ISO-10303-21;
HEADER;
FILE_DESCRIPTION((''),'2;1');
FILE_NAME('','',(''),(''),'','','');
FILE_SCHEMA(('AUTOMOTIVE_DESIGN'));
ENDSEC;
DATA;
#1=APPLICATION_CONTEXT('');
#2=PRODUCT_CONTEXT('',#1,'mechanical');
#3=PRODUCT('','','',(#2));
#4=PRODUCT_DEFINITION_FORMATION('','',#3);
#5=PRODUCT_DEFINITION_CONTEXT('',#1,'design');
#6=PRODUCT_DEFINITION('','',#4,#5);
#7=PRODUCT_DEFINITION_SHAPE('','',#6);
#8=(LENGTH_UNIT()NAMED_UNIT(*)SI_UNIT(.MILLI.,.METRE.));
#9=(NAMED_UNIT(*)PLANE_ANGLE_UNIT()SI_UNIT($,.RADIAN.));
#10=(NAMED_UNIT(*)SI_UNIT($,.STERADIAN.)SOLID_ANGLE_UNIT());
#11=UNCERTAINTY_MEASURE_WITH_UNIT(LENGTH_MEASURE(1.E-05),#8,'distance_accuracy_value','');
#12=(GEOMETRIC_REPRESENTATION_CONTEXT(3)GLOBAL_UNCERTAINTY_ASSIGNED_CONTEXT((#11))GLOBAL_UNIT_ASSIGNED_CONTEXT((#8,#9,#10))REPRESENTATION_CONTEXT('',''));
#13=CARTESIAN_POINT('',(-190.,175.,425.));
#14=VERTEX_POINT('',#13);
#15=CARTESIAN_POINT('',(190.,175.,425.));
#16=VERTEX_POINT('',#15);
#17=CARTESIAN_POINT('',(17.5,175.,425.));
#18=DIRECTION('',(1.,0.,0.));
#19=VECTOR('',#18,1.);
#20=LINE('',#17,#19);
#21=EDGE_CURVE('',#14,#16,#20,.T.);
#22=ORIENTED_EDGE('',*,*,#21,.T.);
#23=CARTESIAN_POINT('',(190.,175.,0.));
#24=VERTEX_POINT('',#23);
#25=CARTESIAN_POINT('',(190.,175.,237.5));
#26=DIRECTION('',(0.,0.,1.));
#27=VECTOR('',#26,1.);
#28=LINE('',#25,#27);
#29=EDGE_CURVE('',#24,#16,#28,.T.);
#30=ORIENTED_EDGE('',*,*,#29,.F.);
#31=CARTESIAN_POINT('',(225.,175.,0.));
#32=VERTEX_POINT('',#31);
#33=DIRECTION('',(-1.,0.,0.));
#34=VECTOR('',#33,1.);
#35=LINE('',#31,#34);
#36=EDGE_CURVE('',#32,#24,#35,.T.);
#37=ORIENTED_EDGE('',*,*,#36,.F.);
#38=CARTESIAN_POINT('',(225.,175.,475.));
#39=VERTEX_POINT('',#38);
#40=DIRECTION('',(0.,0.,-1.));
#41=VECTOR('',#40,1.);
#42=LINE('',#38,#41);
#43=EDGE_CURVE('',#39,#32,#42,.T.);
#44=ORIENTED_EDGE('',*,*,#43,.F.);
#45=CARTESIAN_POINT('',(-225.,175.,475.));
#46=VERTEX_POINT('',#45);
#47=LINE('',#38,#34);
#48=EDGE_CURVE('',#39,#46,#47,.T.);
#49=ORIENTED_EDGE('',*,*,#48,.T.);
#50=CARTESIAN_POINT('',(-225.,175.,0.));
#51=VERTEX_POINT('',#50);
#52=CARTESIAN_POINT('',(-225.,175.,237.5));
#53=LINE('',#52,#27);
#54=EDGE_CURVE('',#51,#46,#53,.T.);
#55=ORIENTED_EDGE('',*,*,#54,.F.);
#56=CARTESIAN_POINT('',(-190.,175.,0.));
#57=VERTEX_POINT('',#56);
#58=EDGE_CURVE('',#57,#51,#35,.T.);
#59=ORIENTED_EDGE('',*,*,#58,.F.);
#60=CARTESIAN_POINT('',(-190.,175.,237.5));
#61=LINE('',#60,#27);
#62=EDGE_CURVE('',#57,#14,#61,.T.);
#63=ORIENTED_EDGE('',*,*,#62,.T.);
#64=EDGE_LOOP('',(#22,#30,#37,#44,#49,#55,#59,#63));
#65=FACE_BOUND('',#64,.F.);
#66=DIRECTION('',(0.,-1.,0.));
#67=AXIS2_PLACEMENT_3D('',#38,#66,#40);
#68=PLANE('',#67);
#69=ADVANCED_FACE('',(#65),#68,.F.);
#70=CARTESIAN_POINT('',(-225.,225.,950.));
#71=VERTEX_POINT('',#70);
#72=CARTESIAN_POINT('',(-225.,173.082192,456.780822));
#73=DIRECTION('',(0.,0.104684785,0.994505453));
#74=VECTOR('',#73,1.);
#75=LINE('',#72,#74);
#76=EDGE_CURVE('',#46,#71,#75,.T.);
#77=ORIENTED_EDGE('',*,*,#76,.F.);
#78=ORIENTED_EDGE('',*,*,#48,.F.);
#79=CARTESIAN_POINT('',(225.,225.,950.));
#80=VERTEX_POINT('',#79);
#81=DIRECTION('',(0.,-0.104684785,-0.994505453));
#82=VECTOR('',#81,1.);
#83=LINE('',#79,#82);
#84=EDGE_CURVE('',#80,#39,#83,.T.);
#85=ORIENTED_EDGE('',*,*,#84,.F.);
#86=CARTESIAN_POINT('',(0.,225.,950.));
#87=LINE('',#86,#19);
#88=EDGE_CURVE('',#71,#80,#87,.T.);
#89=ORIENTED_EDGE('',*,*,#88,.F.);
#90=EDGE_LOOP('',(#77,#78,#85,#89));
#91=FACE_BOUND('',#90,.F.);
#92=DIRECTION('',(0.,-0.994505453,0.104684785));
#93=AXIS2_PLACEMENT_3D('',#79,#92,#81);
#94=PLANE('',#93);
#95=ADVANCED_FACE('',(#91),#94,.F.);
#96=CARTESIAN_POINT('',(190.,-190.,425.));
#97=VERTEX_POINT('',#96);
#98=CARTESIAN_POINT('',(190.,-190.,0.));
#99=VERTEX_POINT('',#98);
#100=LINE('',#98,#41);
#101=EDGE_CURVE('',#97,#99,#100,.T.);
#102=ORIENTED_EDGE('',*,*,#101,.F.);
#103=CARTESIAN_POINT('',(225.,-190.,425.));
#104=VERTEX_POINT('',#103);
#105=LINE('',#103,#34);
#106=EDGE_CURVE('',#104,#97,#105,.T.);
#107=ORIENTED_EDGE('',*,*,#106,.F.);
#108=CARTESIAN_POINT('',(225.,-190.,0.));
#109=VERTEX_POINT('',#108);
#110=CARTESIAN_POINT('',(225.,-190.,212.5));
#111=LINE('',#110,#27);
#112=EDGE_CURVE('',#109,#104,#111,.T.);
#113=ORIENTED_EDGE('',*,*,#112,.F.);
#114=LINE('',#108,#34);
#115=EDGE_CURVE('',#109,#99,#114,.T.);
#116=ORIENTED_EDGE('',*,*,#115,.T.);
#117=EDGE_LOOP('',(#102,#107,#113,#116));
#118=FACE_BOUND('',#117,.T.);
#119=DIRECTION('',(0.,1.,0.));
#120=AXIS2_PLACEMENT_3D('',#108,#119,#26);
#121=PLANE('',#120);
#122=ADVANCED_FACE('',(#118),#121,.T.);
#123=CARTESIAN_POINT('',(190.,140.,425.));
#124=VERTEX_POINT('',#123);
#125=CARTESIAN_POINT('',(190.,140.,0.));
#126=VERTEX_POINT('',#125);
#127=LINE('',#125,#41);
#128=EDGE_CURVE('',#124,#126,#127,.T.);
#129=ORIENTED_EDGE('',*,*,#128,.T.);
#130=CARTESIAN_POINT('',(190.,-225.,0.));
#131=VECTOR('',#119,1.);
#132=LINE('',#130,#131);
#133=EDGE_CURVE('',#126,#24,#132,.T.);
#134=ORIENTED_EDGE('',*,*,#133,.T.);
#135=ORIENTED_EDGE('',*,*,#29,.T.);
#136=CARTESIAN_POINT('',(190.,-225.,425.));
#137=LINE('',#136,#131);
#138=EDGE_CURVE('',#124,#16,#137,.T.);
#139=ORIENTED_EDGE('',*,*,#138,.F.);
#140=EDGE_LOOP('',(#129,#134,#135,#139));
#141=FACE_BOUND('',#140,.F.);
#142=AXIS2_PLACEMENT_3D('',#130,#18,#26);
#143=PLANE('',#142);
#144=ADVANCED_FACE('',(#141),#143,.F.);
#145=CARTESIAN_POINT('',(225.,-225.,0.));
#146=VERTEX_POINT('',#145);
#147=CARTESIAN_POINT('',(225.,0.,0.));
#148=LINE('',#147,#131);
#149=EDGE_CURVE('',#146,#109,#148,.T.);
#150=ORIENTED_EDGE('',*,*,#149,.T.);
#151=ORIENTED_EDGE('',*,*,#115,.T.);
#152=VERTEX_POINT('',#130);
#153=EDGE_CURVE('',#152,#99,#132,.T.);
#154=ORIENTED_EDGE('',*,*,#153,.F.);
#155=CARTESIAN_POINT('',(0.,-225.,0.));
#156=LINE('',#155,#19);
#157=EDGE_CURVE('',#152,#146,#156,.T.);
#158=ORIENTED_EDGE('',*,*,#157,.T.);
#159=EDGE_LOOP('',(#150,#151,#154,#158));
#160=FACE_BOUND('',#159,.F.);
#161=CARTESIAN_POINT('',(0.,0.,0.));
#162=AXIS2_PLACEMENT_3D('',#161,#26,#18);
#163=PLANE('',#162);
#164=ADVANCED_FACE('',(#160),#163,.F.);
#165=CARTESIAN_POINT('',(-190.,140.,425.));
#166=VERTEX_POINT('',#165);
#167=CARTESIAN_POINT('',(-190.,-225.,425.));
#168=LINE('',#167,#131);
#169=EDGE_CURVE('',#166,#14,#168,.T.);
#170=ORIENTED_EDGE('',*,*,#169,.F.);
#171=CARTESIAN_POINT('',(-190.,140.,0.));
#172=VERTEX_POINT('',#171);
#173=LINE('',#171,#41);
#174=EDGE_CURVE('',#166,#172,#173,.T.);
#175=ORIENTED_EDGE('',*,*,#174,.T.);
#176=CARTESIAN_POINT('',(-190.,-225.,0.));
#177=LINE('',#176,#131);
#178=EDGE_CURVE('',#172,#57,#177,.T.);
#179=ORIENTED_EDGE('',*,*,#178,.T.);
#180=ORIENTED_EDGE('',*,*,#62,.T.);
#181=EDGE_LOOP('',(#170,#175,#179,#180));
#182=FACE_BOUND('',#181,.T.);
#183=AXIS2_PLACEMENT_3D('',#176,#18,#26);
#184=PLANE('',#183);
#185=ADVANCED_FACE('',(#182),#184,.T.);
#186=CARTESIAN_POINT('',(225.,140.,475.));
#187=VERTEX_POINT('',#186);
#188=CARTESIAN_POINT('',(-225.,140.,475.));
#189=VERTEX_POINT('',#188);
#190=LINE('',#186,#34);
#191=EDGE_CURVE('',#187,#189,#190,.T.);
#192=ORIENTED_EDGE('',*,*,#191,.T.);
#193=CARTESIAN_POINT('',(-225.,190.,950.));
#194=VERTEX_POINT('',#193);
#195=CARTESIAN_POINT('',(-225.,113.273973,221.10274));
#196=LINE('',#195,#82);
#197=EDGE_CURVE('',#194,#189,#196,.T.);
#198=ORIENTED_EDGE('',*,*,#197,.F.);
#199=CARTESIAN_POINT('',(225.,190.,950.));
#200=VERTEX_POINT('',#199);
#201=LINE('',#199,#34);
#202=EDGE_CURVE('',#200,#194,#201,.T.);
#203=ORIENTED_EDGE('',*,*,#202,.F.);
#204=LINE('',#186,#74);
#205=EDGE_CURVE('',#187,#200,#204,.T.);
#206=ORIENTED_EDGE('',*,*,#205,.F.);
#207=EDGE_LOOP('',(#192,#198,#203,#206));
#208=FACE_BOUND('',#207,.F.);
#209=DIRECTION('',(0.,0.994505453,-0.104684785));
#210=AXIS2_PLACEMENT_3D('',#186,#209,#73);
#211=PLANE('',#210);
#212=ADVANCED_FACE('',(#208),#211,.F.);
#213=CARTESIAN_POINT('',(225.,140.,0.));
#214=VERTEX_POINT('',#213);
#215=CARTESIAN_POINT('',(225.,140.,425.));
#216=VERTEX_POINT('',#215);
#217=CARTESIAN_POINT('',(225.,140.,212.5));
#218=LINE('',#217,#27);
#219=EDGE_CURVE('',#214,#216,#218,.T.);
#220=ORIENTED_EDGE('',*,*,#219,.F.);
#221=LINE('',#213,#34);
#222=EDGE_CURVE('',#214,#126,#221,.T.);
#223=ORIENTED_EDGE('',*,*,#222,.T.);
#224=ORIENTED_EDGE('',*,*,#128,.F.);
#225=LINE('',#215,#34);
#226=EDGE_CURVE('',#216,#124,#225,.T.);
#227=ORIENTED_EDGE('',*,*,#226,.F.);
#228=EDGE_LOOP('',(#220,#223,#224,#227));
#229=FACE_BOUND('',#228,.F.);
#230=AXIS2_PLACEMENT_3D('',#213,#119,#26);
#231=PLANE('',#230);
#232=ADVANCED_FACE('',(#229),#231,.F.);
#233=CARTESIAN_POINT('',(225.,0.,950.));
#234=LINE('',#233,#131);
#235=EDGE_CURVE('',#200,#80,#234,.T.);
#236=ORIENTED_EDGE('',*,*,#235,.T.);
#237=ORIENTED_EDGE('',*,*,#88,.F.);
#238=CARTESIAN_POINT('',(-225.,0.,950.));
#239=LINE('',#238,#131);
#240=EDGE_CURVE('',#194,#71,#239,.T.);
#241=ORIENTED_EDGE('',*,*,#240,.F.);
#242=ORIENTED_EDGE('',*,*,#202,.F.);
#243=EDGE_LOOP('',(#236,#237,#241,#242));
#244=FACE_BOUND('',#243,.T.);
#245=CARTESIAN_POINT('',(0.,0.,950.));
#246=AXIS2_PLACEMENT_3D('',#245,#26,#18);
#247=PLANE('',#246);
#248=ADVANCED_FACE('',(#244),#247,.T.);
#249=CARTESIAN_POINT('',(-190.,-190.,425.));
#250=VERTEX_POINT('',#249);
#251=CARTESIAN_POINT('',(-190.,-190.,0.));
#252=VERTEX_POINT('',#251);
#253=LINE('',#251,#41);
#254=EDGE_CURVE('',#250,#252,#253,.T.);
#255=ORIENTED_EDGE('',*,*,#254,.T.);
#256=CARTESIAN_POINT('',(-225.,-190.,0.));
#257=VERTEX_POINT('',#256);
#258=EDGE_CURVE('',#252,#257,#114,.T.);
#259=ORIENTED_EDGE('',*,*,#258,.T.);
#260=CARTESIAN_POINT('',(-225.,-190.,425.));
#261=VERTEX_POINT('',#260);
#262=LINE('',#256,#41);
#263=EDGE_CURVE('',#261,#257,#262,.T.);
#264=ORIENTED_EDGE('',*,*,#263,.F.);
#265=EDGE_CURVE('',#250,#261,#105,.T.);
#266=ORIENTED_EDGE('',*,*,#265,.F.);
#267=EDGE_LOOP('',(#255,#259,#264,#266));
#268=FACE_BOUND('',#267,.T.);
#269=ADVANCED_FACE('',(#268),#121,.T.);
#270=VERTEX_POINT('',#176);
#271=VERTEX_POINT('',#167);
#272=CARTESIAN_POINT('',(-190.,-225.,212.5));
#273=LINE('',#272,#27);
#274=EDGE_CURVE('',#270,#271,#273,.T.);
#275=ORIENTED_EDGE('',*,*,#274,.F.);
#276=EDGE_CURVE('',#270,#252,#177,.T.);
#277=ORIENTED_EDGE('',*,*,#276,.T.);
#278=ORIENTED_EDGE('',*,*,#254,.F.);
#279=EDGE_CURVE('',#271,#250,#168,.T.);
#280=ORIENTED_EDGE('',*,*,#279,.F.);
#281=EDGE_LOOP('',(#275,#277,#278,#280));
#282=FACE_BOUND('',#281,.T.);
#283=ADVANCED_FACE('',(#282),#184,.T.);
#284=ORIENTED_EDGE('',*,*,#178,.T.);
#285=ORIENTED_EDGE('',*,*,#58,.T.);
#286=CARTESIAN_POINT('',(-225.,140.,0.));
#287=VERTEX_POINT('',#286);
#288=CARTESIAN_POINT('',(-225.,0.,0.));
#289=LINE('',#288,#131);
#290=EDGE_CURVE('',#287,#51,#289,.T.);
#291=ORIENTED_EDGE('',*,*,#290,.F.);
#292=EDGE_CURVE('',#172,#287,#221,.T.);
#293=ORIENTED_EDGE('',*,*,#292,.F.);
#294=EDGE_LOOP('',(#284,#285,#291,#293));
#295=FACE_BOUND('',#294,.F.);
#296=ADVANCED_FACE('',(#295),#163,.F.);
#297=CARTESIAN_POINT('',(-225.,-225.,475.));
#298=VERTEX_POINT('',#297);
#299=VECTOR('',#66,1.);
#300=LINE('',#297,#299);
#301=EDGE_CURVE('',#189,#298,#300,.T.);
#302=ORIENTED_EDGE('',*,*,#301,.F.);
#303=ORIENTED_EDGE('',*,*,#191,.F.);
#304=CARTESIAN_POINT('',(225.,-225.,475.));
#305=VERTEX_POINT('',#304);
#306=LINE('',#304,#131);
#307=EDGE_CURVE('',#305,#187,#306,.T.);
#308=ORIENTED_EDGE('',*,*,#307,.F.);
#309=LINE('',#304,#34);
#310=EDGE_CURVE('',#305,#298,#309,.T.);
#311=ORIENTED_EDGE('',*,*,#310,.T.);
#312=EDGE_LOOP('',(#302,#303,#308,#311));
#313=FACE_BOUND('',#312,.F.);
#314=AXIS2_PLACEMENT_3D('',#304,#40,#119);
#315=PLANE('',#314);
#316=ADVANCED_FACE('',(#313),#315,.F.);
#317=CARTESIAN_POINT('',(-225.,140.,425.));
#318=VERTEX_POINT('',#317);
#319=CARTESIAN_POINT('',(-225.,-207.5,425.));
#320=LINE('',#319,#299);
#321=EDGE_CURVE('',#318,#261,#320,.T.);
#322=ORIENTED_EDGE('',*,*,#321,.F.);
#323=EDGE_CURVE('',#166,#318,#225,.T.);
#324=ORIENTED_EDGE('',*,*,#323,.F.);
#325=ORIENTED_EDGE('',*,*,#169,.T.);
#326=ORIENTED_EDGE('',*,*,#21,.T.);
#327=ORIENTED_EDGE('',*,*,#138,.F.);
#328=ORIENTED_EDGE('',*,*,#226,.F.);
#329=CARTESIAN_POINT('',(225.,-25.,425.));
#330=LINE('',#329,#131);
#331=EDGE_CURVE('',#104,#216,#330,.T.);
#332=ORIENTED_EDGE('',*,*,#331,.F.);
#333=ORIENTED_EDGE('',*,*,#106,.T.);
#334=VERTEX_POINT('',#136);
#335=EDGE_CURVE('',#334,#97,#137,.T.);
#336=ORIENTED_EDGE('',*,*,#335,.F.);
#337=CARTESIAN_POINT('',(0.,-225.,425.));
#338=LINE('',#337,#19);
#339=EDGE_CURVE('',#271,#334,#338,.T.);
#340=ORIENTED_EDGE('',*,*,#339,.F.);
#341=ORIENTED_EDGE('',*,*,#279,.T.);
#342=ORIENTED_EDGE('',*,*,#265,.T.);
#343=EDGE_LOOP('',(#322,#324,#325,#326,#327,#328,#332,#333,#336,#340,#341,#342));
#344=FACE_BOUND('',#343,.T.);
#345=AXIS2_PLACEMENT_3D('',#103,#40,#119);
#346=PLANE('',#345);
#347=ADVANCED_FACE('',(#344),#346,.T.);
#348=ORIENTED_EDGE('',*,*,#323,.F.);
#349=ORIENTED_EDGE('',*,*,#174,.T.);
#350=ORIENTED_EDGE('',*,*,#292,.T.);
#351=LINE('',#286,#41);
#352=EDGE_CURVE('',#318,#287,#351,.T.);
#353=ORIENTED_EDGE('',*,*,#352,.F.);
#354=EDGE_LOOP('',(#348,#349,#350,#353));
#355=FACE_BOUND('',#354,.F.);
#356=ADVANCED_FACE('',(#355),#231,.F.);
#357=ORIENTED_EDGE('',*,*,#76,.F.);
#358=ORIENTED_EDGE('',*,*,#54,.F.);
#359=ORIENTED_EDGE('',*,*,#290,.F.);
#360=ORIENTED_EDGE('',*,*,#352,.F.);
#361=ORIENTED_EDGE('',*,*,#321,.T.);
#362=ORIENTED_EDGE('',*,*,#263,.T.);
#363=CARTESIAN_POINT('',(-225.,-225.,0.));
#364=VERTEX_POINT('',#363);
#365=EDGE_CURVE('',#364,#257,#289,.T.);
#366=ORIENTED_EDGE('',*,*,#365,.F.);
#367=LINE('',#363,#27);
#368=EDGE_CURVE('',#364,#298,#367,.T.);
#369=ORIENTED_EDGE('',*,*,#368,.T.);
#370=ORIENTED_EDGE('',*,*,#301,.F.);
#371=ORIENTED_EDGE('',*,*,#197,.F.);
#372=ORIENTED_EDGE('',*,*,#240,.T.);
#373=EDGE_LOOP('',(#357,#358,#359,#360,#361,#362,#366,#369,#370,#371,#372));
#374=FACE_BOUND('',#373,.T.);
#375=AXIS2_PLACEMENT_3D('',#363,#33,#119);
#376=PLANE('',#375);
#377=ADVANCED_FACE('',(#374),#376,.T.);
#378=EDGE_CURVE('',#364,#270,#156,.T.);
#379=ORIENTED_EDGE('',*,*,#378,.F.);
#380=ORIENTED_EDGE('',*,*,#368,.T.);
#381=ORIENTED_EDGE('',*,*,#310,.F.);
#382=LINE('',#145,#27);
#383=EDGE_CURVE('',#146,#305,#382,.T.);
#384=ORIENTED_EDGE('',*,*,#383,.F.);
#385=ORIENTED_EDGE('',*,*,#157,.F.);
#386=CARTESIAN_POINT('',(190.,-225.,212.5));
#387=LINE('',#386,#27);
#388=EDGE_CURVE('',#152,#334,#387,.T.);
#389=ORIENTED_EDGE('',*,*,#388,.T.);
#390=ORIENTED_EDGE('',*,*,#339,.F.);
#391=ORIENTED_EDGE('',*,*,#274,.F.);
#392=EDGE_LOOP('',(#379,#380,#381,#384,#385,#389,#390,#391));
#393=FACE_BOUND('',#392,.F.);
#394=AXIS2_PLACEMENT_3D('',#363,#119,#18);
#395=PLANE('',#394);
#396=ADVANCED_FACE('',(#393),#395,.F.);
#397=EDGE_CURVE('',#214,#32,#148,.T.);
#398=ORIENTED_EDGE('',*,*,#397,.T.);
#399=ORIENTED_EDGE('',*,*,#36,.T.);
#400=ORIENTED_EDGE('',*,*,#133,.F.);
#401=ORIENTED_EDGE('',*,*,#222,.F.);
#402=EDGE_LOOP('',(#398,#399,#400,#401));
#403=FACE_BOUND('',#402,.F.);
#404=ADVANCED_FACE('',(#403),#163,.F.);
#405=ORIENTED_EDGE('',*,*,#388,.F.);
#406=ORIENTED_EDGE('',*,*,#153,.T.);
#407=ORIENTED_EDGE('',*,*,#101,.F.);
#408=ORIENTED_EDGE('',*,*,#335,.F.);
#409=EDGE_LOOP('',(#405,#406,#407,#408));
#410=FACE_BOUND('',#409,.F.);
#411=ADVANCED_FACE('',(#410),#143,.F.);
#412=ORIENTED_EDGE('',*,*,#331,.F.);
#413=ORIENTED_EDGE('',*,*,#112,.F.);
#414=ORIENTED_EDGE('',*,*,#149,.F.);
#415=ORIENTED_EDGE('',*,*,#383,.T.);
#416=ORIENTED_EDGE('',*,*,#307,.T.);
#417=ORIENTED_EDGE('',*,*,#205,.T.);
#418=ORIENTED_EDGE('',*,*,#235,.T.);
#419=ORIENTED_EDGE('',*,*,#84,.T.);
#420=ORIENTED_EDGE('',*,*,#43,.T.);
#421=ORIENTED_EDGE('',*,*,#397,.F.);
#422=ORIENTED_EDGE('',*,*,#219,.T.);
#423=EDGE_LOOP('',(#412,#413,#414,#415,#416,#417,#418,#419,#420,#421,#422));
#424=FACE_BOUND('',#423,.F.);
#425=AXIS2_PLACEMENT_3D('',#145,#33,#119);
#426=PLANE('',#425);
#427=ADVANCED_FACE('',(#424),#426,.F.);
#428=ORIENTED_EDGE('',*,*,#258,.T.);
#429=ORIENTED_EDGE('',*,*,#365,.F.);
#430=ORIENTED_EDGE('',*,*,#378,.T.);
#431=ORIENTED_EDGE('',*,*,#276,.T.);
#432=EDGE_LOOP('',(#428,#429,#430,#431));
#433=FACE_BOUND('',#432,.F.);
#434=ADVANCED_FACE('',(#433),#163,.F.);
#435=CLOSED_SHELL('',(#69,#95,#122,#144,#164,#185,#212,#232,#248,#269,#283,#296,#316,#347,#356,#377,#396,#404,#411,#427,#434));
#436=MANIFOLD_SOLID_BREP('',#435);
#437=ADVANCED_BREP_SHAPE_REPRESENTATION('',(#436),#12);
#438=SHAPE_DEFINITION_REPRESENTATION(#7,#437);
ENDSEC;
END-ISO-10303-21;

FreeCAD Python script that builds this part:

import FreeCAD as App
import Part
import Sketcher

doc = App.newDocument("Part")
body = doc.addObject("PartDesign::Body", "Body")

sketch1 = doc.addObject("Sketcher::SketchObject", "Sketch")
body.addObject(sketch1)
sketch1.AttachmentSupport = (doc.XY_Plane, [""])
sketch1.MapMode = "FlatFace"
sketch1.addGeometry(Part.LineSegment(App.Vector(-225, 225, 0), App.Vector(-225, -225, 0)), False)
sketch1.addGeometry(Part.LineSegment(App.Vector(-225, -225, 0), App.Vector(225, -225, 0)), False)
sketch1.addGeometry(Part.LineSegment(App.Vector(225, -225, 0), App.Vector(225, 225, 0)), False)
sketch1.addGeometry(Part.LineSegment(App.Vector(225, 225, 0), App.Vector(-225, 225, 0)), False)
sketch1.addConstraint(Sketcher.Constraint("Coincident", 0, 2, 1, 1))
sketch1.addConstraint(Sketcher.Constraint("Coincident", 1, 2, 2, 1))
sketch1.addConstraint(Sketcher.Constraint("Coincident", 2, 2, 3, 1))
sketch1.addConstraint(Sketcher.Constraint("Coincident", 3, 2, 0, 1))
sketch1.addConstraint(Sketcher.Constraint("Vertical", 0))
sketch1.addConstraint(Sketcher.Constraint("Horizontal", 1))
sketch1.addConstraint(Sketcher.Constraint("Vertical", 2))
sketch1.addConstraint(Sketcher.Constraint("Horizontal", 3))
sketch1.addConstraint(Sketcher.Constraint("Symmetric", 0, 2, 2, 2, -1, 1))
sketch1.addConstraint(Sketcher.Constraint("Equal", 3, 0))
sketch1.addConstraint(Sketcher.Constraint("DistanceX", 1, 1, 1, 2, 450.0))
pad1 = doc.addObject("PartDesign::Pad", "Pad")
body.addObject(pad1)
pad1.Profile = sketch1
pad1.Length = 950

sketch2 = doc.addObject("Sketcher::SketchObject", "Sketch001")
body.addObject(sketch2)
sketch2.AttachmentSupport = (doc.YZ_Plane, [""])
sketch2.MapMode = "FlatFace"
sketch2.AttachmentOffset = App.Placement(App.Vector(0, 0, 225), App.Rotation())
sketch2.addGeometry(Part.LineSegment(App.Vector(175, 475, 0), App.Vector(175, 0, 0)), False)
sketch2.addGeometry(Part.LineSegment(App.Vector(175, 0, 0), App.Vector(225, 0, 0)), False)
sketch2.addGeometry(Part.LineSegment(App.Vector(225, 0, 0), App.Vector(225, 950, 0)), False)
sketch2.addGeometry(Part.LineSegment(App.Vector(225, 950, 0), App.Vector(175, 475, 0)), False)
sketch2.addGeometry(Part.LineSegment(App.Vector(-225, 950, 0), App.Vector(-225, 475, 0)), False)
sketch2.addGeometry(Part.LineSegment(App.Vector(-225, 475, 0), App.Vector(140, 475, 0)), False)
sketch2.addGeometry(Part.LineSegment(App.Vector(140, 475, 0), App.Vector(190, 950, 0)), False)
sketch2.addGeometry(Part.LineSegment(App.Vector(190, 950, 0), App.Vector(-225, 950, 0)), False)
sketch2.addGeometry(Part.LineSegment(App.Vector(-190, 425, 0), App.Vector(-190, 0, 0)), False)
sketch2.addGeometry(Part.LineSegment(App.Vector(-190, 0, 0), App.Vector(140, 0, 0)), False)
sketch2.addGeometry(Part.LineSegment(App.Vector(140, 0, 0), App.Vector(140, 425, 0)), False)
sketch2.addGeometry(Part.LineSegment(App.Vector(140, 425, 0), App.Vector(-190, 425, 0)), False)
sketch2.addConstraint(Sketcher.Constraint("Coincident", 0, 2, 1, 1))
sketch2.addConstraint(Sketcher.Constraint("Coincident", 1, 2, 2, 1))
sketch2.addConstraint(Sketcher.Constraint("Coincident", 2, 2, 3, 1))
sketch2.addConstraint(Sketcher.Constraint("Coincident", 3, 2, 0, 1))
sketch2.addConstraint(Sketcher.Constraint("Coincident", 4, 2, 5, 1))
sketch2.addConstraint(Sketcher.Constraint("Coincident", 5, 2, 6, 1))
sketch2.addConstraint(Sketcher.Constraint("Coincident", 6, 2, 7, 1))
sketch2.addConstraint(Sketcher.Constraint("Coincident", 7, 2, 4, 1))
sketch2.addConstraint(Sketcher.Constraint("Coincident", 8, 2, 9, 1))
sketch2.addConstraint(Sketcher.Constraint("Coincident", 9, 2, 10, 1))
sketch2.addConstraint(Sketcher.Constraint("Coincident", 10, 2, 11, 1))
sketch2.addConstraint(Sketcher.Constraint("Coincident", 11, 2, 8, 1))
sketch2.addConstraint(Sketcher.Constraint("Vertical", 0))
sketch2.addConstraint(Sketcher.Constraint("Horizontal", 1))
sketch2.addConstraint(Sketcher.Constraint("Vertical", 2))
sketch2.addConstraint(Sketcher.Constraint("Vertical", 4))
sketch2.addConstraint(Sketcher.Constraint("Horizontal", 5))
sketch2.addConstraint(Sketcher.Constraint("Horizontal", 7))
sketch2.addConstraint(Sketcher.Constraint("Vertical", 8))
sketch2.addConstraint(Sketcher.Constraint("Horizontal", 9))
sketch2.addConstraint(Sketcher.Constraint("Vertical", 10))
sketch2.addConstraint(Sketcher.Constraint("Horizontal", 11))
sketch2.addConstraint(Sketcher.Constraint("Symmetric", 2, 2, 7, 2, -2))
sketch2.addConstraint(Sketcher.Constraint("PointOnObject", 0, 2, -1))
sketch2.addConstraint(Sketcher.Constraint("PointOnObject", 8, 2, -1))
sketch2.addConstraint(Sketcher.Constraint("Parallel", 3, 6))
sketch2.addConstraint(Sketcher.Constraint("Horizontal", 3, 2, 4, 2))
sketch2.addConstraint(Sketcher.Constraint("Vertical", 5, 2, 9, 2))
sketch2.addConstraint(Sketcher.Constraint("Equal", 0, 4))
sketch2.addConstraint(Sketcher.Constraint("DistanceX", 1, 1, 1, 2, 50.0))
sketch2.addConstraint(Sketcher.Constraint("DistanceX", 5, 1, 5, 2, 365.0))
sketch2.addConstraint(Sketcher.Constraint("DistanceX", 9, 1, 9, 2, 330.0))
sketch2.addConstraint(Sketcher.Constraint("DistanceY", 0, 2, 0, 1, 475.0))
sketch2.addConstraint(Sketcher.Constraint("DistanceY", 8, 2, 8, 1, 425.0))
sketch2.addConstraint(Sketcher.Constraint("DistanceX", -1, 1, 0, 2, 175.0))
pocket1 = doc.addObject("PartDesign::Pocket", "Pocket")
body.addObject(pocket1)
pocket1.Profile = sketch2
pocket1.Type = "ThroughAll"

sketch3 = doc.addObject("Sketcher::SketchObject", "Sketch002")
body.addObject(sketch3)
sketch3.AttachmentSupport = (doc.XZ_Plane, [""])
sketch3.MapMode = "FlatFace"
sketch3.AttachmentOffset = App.Placement(App.Vector(0, 0, 225), App.Rotation())
sketch3.addGeometry(Part.LineSegment(App.Vector(-190, 425, 0), App.Vector(-190, 0, 0)), False)
sketch3.addGeometry(Part.LineSegment(App.Vector(-190, 0, 0), App.Vector(190, 0, 0)), False)
sketch3.addGeometry(Part.LineSegment(App.Vector(190, 0, 0), App.Vector(190, 425, 0)), False)
sketch3.addGeometry(Part.LineSegment(App.Vector(190, 425, 0), App.Vector(-190, 425, 0)), False)
sketch3.addConstraint(Sketcher.Constraint("Coincident", 0, 2, 1, 1))
sketch3.addConstraint(Sketcher.Constraint("Coincident", 1, 2, 2, 1))
sketch3.addConstraint(Sketcher.Constraint("Coincident", 2, 2, 3, 1))
sketch3.addConstraint(Sketcher.Constraint("Coincident", 3, 2, 0, 1))
sketch3.addConstraint(Sketcher.Constraint("Vertical", 0))
sketch3.addConstraint(Sketcher.Constraint("Horizontal", 1))
sketch3.addConstraint(Sketcher.Constraint("Vertical", 2))
sketch3.addConstraint(Sketcher.Constraint("Horizontal", 3))
sketch3.addConstraint(Sketcher.Constraint("Symmetric", 0, 2, 1, 2, -1, 1))
sketch3.addConstraint(Sketcher.Constraint("DistanceX", 1, 1, 1, 2, 380.0))
sketch3.addConstraint(Sketcher.Constraint("DistanceY", 0, 2, 0, 1, 425.0))
pocket2 = doc.addObject("PartDesign::Pocket", "Pocket001")
body.addObject(pocket2)
pocket2.Profile = sketch3
pocket2.Type = "ThroughAll"

doc.recompute()
